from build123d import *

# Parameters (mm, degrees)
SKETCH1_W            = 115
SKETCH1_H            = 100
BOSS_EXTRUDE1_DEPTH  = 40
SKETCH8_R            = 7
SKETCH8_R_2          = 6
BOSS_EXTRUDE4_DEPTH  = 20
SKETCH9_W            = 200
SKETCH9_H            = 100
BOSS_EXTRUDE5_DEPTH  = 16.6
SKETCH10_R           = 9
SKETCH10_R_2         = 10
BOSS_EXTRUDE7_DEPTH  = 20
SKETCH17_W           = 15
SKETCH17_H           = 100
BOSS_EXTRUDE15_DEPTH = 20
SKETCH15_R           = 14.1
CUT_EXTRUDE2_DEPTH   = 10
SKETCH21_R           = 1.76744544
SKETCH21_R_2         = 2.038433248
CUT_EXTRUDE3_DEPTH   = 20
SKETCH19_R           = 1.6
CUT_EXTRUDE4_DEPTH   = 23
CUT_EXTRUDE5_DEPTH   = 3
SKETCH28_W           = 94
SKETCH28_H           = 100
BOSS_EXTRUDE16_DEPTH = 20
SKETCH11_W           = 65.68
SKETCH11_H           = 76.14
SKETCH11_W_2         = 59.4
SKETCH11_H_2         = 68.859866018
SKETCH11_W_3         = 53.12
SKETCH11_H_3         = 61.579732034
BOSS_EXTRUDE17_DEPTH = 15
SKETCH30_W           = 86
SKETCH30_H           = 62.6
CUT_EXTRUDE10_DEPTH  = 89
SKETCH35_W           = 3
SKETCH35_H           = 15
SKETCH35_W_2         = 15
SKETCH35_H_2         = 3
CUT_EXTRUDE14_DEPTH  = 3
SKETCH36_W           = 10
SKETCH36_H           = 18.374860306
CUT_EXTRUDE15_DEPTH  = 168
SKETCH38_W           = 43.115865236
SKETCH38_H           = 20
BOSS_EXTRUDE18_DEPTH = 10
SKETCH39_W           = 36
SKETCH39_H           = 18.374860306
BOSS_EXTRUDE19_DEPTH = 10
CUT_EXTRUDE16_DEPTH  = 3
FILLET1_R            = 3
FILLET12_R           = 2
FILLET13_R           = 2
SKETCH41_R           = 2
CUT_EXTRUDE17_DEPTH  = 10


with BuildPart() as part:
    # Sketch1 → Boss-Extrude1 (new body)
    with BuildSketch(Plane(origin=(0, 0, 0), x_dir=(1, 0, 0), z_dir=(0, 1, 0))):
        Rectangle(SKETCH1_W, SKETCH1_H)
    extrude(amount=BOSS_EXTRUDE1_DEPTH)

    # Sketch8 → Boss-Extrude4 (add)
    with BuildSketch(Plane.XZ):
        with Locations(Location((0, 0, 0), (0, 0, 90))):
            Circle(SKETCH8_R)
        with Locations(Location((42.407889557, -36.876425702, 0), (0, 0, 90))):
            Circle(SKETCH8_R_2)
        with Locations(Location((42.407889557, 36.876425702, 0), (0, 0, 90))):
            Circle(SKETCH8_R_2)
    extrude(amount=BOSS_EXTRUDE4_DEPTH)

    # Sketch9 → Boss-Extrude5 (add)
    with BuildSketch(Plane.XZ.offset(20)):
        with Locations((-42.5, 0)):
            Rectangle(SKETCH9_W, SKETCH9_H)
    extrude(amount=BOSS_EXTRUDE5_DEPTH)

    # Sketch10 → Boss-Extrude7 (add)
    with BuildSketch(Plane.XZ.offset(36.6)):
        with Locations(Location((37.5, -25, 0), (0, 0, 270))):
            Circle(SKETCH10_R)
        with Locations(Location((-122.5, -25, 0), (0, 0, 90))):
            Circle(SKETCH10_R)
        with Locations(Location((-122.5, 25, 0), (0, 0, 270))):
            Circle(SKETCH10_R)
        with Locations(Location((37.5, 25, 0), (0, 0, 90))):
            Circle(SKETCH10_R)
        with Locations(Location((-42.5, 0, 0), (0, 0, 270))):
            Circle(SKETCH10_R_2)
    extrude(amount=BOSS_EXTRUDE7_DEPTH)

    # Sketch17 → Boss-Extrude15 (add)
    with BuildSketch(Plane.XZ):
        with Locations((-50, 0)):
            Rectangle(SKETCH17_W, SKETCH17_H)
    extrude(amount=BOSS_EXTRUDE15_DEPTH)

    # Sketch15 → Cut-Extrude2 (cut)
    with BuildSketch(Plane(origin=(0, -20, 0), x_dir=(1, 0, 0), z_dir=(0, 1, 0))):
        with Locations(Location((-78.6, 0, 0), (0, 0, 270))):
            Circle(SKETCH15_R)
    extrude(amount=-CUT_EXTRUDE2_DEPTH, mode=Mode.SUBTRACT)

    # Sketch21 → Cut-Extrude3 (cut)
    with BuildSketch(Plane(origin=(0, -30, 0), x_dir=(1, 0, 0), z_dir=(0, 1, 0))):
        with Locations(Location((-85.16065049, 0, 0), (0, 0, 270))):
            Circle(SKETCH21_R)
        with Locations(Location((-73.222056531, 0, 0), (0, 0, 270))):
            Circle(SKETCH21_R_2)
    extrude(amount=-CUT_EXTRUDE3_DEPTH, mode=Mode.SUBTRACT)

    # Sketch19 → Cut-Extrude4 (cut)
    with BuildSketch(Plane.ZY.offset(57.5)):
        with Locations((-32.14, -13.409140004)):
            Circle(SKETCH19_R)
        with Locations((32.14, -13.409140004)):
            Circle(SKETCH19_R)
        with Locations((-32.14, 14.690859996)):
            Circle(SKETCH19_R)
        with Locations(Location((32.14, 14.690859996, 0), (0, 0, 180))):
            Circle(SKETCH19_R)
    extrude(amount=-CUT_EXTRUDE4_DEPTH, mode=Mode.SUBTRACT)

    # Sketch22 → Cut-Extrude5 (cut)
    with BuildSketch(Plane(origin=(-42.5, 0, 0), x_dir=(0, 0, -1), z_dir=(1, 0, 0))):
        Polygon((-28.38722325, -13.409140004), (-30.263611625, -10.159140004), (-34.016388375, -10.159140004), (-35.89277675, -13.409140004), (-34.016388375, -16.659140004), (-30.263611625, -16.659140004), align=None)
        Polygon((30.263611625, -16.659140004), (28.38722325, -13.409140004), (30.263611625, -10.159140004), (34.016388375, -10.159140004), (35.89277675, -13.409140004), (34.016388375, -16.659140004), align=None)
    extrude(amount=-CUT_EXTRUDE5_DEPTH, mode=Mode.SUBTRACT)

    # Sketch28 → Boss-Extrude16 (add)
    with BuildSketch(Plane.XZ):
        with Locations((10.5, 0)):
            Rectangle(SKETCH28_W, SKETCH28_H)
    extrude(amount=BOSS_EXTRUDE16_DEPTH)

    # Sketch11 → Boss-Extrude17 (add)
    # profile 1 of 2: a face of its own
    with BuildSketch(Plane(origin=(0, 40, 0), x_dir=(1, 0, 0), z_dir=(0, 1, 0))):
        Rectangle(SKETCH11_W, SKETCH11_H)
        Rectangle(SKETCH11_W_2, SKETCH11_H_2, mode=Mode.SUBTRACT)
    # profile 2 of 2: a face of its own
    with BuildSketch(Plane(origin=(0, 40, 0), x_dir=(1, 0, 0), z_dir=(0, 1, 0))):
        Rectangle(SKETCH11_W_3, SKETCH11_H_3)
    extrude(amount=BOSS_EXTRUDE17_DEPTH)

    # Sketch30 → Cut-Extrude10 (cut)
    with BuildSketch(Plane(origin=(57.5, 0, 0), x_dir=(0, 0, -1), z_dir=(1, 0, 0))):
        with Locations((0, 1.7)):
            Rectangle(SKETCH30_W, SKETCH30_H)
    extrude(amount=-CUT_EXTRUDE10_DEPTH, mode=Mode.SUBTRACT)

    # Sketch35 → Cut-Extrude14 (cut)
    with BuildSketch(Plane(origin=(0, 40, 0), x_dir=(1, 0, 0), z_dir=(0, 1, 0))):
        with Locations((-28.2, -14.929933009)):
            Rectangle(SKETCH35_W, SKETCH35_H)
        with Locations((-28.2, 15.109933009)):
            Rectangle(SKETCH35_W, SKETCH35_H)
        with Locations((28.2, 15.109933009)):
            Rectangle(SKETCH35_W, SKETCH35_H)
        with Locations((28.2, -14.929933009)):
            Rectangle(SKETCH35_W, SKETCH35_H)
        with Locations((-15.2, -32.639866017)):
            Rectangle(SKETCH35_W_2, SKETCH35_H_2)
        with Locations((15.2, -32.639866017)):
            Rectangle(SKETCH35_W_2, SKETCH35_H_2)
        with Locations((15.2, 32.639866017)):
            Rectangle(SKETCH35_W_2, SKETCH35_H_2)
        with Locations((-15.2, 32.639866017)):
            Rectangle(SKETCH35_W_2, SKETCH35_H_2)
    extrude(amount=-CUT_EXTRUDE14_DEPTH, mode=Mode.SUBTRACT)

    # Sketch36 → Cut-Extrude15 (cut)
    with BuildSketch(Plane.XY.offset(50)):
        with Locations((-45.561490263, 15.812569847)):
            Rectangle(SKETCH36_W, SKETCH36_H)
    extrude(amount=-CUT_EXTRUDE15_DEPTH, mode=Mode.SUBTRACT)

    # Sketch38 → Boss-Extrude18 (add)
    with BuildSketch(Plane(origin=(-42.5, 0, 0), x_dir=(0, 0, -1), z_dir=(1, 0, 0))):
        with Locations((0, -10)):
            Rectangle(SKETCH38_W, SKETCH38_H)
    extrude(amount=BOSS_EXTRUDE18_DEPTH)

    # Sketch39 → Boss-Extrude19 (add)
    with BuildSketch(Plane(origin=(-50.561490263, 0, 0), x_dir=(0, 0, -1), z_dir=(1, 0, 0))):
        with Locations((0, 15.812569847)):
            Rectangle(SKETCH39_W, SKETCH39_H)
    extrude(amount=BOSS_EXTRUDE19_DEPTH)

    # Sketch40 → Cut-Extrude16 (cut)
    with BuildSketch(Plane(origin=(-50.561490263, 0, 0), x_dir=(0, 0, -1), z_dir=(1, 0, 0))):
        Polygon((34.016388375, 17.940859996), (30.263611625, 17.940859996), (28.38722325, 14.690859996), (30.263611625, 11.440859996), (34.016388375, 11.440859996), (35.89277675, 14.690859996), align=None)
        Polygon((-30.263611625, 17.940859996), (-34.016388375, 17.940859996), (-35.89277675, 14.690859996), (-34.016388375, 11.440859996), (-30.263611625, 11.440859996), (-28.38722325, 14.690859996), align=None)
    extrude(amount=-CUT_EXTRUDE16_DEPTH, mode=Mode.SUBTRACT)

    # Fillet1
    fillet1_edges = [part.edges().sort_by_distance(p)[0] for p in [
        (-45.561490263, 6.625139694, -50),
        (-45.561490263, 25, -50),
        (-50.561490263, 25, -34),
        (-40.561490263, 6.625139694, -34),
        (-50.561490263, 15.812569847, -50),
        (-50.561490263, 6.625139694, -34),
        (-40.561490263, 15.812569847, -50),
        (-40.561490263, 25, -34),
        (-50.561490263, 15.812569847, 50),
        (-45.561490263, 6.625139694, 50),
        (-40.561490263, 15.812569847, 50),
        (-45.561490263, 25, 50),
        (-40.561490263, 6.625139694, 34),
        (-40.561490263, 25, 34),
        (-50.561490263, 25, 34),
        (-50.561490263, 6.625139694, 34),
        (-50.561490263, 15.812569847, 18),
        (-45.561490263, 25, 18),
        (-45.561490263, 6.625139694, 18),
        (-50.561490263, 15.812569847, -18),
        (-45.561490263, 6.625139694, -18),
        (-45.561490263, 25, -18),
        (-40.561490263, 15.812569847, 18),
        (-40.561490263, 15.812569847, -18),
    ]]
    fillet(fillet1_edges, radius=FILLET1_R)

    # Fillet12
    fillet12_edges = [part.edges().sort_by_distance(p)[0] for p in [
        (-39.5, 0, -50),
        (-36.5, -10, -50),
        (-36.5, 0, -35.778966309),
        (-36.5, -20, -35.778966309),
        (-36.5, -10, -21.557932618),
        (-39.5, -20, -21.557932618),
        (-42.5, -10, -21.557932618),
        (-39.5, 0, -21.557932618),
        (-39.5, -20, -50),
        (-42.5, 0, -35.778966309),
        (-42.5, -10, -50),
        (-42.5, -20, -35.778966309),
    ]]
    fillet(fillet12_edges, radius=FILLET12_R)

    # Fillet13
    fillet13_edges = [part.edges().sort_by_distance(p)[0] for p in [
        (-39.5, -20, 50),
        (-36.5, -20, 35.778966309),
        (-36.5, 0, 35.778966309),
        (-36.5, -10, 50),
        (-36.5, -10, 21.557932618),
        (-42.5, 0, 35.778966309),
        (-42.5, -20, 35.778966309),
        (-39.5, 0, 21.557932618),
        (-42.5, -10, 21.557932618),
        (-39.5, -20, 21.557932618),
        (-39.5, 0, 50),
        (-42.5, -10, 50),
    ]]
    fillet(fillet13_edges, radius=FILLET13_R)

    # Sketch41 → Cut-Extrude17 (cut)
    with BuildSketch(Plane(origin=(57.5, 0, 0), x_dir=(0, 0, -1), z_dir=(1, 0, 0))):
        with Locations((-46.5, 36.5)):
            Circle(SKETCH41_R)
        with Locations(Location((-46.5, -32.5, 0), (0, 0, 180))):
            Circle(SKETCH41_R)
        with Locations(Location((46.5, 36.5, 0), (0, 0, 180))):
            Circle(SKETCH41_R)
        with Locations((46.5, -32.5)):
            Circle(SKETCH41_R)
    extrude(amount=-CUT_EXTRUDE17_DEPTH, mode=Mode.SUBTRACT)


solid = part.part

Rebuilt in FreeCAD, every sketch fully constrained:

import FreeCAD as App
import Part
import Sketcher

V = App.Vector
Q = App.Units.Quantity


def edges_at(feature, points):
    """Names of the edges that pass closest to the given points."""
    edges = feature.Shape.Edges
    near = lambda p: min(range(len(edges)), key=lambda i: edges[i].distToShape(Part.Vertex(*p))[0])
    return sorted({f"Edge{near(p) + 1}" for p in points})


def add_polygon(sketch, points):
    """Adds a closed chain of lines whose ends are joined by coincident constraints."""
    first, n = sketch.GeometryCount, len(points)
    for a, b in zip(points, points[1:] + points[:1]):
        sketch.addGeometry(Part.LineSegment(App.Vector(*a, 0), App.Vector(*b, 0)), False)
    for i in range(n):
        sketch.addConstraint(Sketcher.Constraint("Coincident", first + i, 2, first + (i + 1) % n, 1))

doc = App.newDocument("Part")
params = doc.addObject("Spreadsheet::Sheet", "Params")
for row, (alias, value) in enumerate([
    ("sketch1_width", "115 mm"),
    ("sketch1_height", "100 mm"),
    ("pad1_length", "40 mm"),
    ("sketch2_diameter", "14 mm"),
    ("sketch2_diameter2", "12 mm"),
    ("pad2_length", "20 mm"),
    ("sketch3_width", "200 mm"),
    ("sketch3_height", "100 mm"),
    ("pad3_length", "16.6 mm"),
    ("sketch4_diameter", "18 mm"),
    ("sketch4_diameter2", "20 mm"),
    ("pad4_length", "20 mm"),
    ("sketch5_width", "15 mm"),
    ("sketch5_height", "100 mm"),
    ("pad5_length", "20 mm"),
    ("sketch6_diameter", "28.2 mm"),
    ("pocket1_length", "10 mm"),
    ("pocket2_length", "20 mm"),
    ("sketch8_diameter", "3.2 mm"),
    ("pocket3_length", "23 mm"),
    ("pocket4_length", "3 mm"),
    ("sketch10_width", "94 mm"),
    ("sketch10_height", "100 mm"),
    ("pad6_length", "20 mm"),
    ("sketch11_width", "59.4 mm"),
    ("sketch11_width2", "65.68 mm"),
    ("sketch11_width3", "53.12 mm"),
    ("sketch11_height", "76.14 mm"),
    ("pad7_length", "15 mm"),
    ("sketch12_height", "86 mm"),
    ("sketch12_width", "62.6 mm"),
    ("pocket5_length", "89 mm"),
    ("sketch13_width", "3 mm"),
    ("sketch13_width2", "15 mm"),
    ("pocket6_length", "3 mm"),
    ("sketch14_width", "10 mm"),
    ("pocket7_length", "168 mm"),
    ("sketch15_width", "20 mm"),
    ("pad8_length", "10 mm"),
    ("sketch16_height", "36 mm"),
    ("pad9_length", "10 mm"),
    ("pocket8_length", "3 mm"),
    ("fillet_radius", "3 mm"),
    ("fillet2_radius", "2 mm"),
    ("fillet3_radius", "2 mm"),
    ("sketch18_diameter", "4 mm"),
    ("pocket9_length", "10 mm"),
], start=1):
    params.set(f"A{row}", alias)
    params.set(f"B{row}", "=" + value)
    params.setAlias(f"B{row}", alias)

body = doc.addObject("PartDesign::Body", "Body")

sketch1 = doc.addObject("Sketcher::SketchObject", "Sketch")
body.addObject(sketch1)
sketch1.AttachmentSupport = (doc.XZ_Plane, [""])
sketch1.MapMode = "FlatFace"
add_polygon(sketch1, [(-58, -50), (-58, 50), (58, 50), (58, -50)])
sketch1.addConstraint(Sketcher.Constraint("Vertical", 0))
sketch1.addConstraint(Sketcher.Constraint("Horizontal", 1))
sketch1.addConstraint(Sketcher.Constraint("Vertical", 2))
sketch1.addConstraint(Sketcher.Constraint("Horizontal", 3))
sketch1.addConstraint(Sketcher.Constraint("Symmetric", 0, 2, 2, 2, -1, 1))
sketch1.addConstraint(Sketcher.Constraint("DistanceX", 1, 1, 1, 2, 115.0))
sketch1.addConstraint(Sketcher.Constraint("DistanceY", 0, 1, 0, 2, 100.0))
sketch1.setExpression("Constraints[9]", "Params.sketch1_width")
sketch1.setExpression("Constraints[10]", "Params.sketch1_height")
pad1 = doc.addObject("PartDesign::Pad", "Pad")
body.addObject(pad1)
pad1.Profile = sketch1
pad1.setExpression("Length", "Params.pad1_length")
pad1.Reversed = True

sketch2 = doc.addObject("Sketcher::SketchObject", "Sketch001")
body.addObject(sketch2)
sketch2.AttachmentSupport = (doc.XZ_Plane, [""])
sketch2.MapMode = "FlatFace"
sketch2.addGeometry(Part.Circle(V(0, 0, 0), V(0, 0, 1), 7), False)
sketch2.addGeometry(Part.Circle(V(42, -37, 0), V(0, 0, 1), 6), False)
sketch2.addGeometry(Part.Circle(V(42, 37, 0), V(0, 0, 1), 6), False)
sketch2.addConstraint(Sketcher.Constraint("Coincident", 0, 3, -1, 1))
sketch2.addConstraint(Sketcher.Constraint("Equal", 1, 2))
sketch2.addConstraint(Sketcher.Constraint("Symmetric", 1, 3, 2, 3, -1))
sketch2.addConstraint(Sketcher.Constraint("Diameter", 0, 14.0))
sketch2.addConstraint(Sketcher.Constraint("Diameter", 1, 12.0))
sketch2.addConstraint(Sketcher.Constraint("DistanceX", -1, 1, 1, 3, 42.40789))
sketch2.addConstraint(Sketcher.Constraint("DistanceY", 1, 3, 2, 3, 73.752851))
sketch2.setExpression("Constraints[3]", "Params.sketch2_diameter")
sketch2.setExpression("Constraints[4]", "Params.sketch2_diameter2")
pad2 = doc.addObject("PartDesign::Pad", "Pad001")
body.addObject(pad2)
pad2.Profile = sketch2
pad2.setExpression("Length", "Params.pad2_length")

sketch3 = doc.addObject("Sketcher::SketchObject", "Sketch002")
body.addObject(sketch3)
sketch3.AttachmentSupport = (doc.XZ_Plane, [""])
sketch3.MapMode = "FlatFace"
sketch3.AttachmentOffset = App.Placement(V(0, 0, 20), App.Rotation())
add_polygon(sketch3, [(-142, 50), (-142, -50), (58, -50), (58, 50)])
sketch3.addConstraint(Sketcher.Constraint("Vertical", 0))
sketch3.addConstraint(Sketcher.Constraint("Horizontal", 1))
sketch3.addConstraint(Sketcher.Constraint("Vertical", 2))
sketch3.addConstraint(Sketcher.Constraint("Horizontal", 3))
sketch3.addConstraint(Sketcher.Constraint("DistanceX", 1, 1, 1, 2, 200.0))
sketch3.addConstraint(Sketcher.Constraint("DistanceY", 0, 2, 0, 1, 100.0))
sketch3.addConstraint(Sketcher.Constraint("DistanceY", 0, 2, -1, 1, 50.0))
sketch3.addConstraint(Sketcher.Constraint("DistanceX", 0, 2, -1, 1, 142.5))
sketch3.setExpression("Constraints[8]", "Params.sketch3_width")
sketch3.setExpression("Constraints[9]", "Params.sketch3_height")
pad3 = doc.addObject("PartDesign::Pad", "Pad002")
body.addObject(pad3)
pad3.Profile = sketch3
pad3.setExpression("Length", "Params.pad3_length")

sketch4 = doc.addObject("Sketcher::SketchObject", "Sketch003")
body.addObject(sketch4)
sketch4.AttachmentSupport = (doc.XZ_Plane, [""])
sketch4.MapMode = "FlatFace"
sketch4.AttachmentOffset = App.Placement(V(0, 0, 36.6), App.Rotation())
sketch4.addGeometry(Part.Circle(V(38, -25, 0), V(0, 0, 1), 9), False)
sketch4.addGeometry(Part.Circle(V(-122, -25, 0), V(0, 0, 1), 9), False)
sketch4.addGeometry(Part.Circle(V(-122, 25, 0), V(0, 0, 1), 9), False)
sketch4.addGeometry(Part.Circle(V(38, 25, 0), V(0, 0, 1), 9), False)
sketch4.addGeometry(Part.Circle(V(-42, 0, 0), V(0, 0, 1), 10), False)
sketch4.addConstraint(Sketcher.Constraint("Equal", 0, 1))
sketch4.addConstraint(Sketcher.Constraint("Equal", 1, 2))
sketch4.addConstraint(Sketcher.Constraint("Equal", 2, 3))
sketch4.addConstraint(Sketcher.Constraint("Symmetric", 1, 3, 2, 3, -1))
sketch4.addConstraint(Sketcher.Constraint("Symmetric", 0, 3, 3, 3, -1))
sketch4.addConstraint(Sketcher.Constraint("PointOnObject", 4, 3, -1))
sketch4.addConstraint(Sketcher.Constraint("Horizontal", 0, 3, 1, 3))
sketch4.addConstraint(Sketcher.Constraint("Diameter", 0, 18.0))
sketch4.addConstraint(Sketcher.Constraint("Diameter", 4, 20.0))
sketch4.addConstraint(Sketcher.Constraint("DistanceY", 0, 3, -1, 1, 25.0))
sketch4.addConstraint(Sketcher.Constraint("DistanceX", 1, 3, 0, 3, 160.0))
sketch4.addConstraint(Sketcher.Constraint("DistanceX", 4, 3, 0, 3, 80.0))
sketch4.addConstraint(Sketcher.Constraint("DistanceX", -1, 1, 0, 3, 37.5))
sketch4.setExpression("Constraints[7]", "Params.sketch4_diameter")
sketch4.setExpression("Constraints[8]", "Params.sketch4_diameter2")
pad4 = doc.addObject("PartDesign::Pad", "Pad003")
body.addObject(pad4)
pad4.Profile = sketch4
pad4.setExpression("Length", "Params.pad4_length")

sketch5 = doc.addObject("Sketcher::SketchObject", "Sketch004")
body.addObject(sketch5)
sketch5.AttachmentSupport = (doc.XZ_Plane, [""])
sketch5.MapMode = "FlatFace"
add_polygon(sketch5, [(-58, 50), (-58, -50), (-42, -50), (-42, 50)])
sketch5.addConstraint(Sketcher.Constraint("Vertical", 0))
sketch5.addConstraint(Sketcher.Constraint("Horizontal", 1))
sketch5.addConstraint(Sketcher.Constraint("Vertical", 2))
sketch5.addConstraint(Sketcher.Constraint("Horizontal", 3))
sketch5.addConstraint(Sketcher.Constraint("DistanceX", 1, 1, 1, 2, 15.0))
sketch5.addConstraint(Sketcher.Constraint("DistanceY", 0, 2, 0, 1, 100.0))
sketch5.addConstraint(Sketcher.Constraint("DistanceY", 0, 2, -1, 1, 50.0))
sketch5.addConstraint(Sketcher.Constraint("DistanceX", 0, 2, -1, 1, 57.5))
sketch5.setExpression("Constraints[8]", "Params.sketch5_width")
sketch5.setExpression("Constraints[9]", "Params.sketch5_height")
pad5 = doc.addObject("PartDesign::Pad", "Pad004")
body.addObject(pad5)
pad5.Profile = sketch5
pad5.setExpression("Length", "Params.pad5_length")

sketch6 = doc.addObject("Sketcher::SketchObject", "Sketch005")
body.addObject(sketch6)
sketch6.AttachmentSupport = (doc.XZ_Plane, [""])
sketch6.MapMode = "FlatFace"
sketch6.AttachmentOffset = App.Placement(V(0, 0, 20), App.Rotation())
sketch6.addGeometry(Part.Circle(V(-79, 0, 0), V(0, 0, 1), 14), False)
sketch6.addConstraint(Sketcher.Constraint("PointOnObject", 0, 3, -1))
sketch6.addConstraint(Sketcher.Constraint("Diameter", 0, 28.2))
sketch6.addConstraint(Sketcher.Constraint("DistanceX", 0, 3, -1, 1, 78.6))
sketch6.setExpression("Constraints[1]", "Params.sketch6_diameter")
pocket1 = doc.addObject("PartDesign::Pocket", "Pocket")
body.addObject(pocket1)
pocket1.Profile = sketch6
pocket1.setExpression("Length", "Params.pocket1_length")
pocket1.Reversed = True

sketch7 = doc.addObject("Sketcher::SketchObject", "Sketch006")
body.addObject(sketch7)
sketch7.AttachmentSupport = (doc.XZ_Plane, [""])
sketch7.MapMode = "FlatFace"
sketch7.AttachmentOffset = App.Placement(V(0, 0, 30), App.Rotation())
sketch7.addGeometry(Part.Circle(V(-85.2, 0, 0), V(0, 0, 1), 1.8), False)
sketch7.addGeometry(Part.Circle(V(-73.2, 0, 0), V(0, 0, 1), 2), False)
sketch7.addConstraint(Sketcher.Constraint("PointOnObject", 0, 3, -1))
sketch7.addConstraint(Sketcher.Constraint("PointOnObject", 1, 3, -1))
sketch7.addConstraint(Sketcher.Constraint("Diameter", 0, 3.534891))
sketch7.addConstraint(Sketcher.Constraint("Diameter", 1, 4.076866))
sketch7.addConstraint(Sketcher.Constraint("DistanceX", 0, 3, -1, 1, 85.16065))
sketch7.addConstraint(Sketcher.Constraint("DistanceX", 1, 3, -1, 1, 73.222057))
pocket2 = doc.addObject("PartDesign::Pocket", "Pocket001")
body.addObject(pocket2)
pocket2.Profile = sketch7
pocket2.setExpression("Length", "Params.pocket2_length")
pocket2.Reversed = True

sketch8 = doc.addObject("Sketcher::SketchObject", "Sketch007")
body.addObject(sketch8)
sketch8.AttachmentSupport = (doc.YZ_Plane, [""])
sketch8.MapMode = "FlatFace"
sketch8.AttachmentOffset = App.Placement(V(0, 0, -57.5), App.Rotation())
sketch8.addGeometry(Part.Circle(V(-13.4, -32.1, 0), V(0, 0, 1), 1.6), False)
sketch8.addGeometry(Part.Circle(V(-13.4, 32.1, 0), V(0, 0, 1), 1.6), False)
sketch8.addGeometry(Part.Circle(V(14.7, -32.1, 0), V(0, 0, 1), 1.6), False)
sketch8.addGeometry(Part.Circle(V(14.7, 32.1, 0), V(0, 0, 1), 1.6), False)
sketch8.addConstraint(Sketcher.Constraint("Equal", 0, 1))
sketch8.addConstraint(Sketcher.Constraint("Equal", 1, 2))
sketch8.addConstraint(Sketcher.Constraint("Equal", 2, 3))
sketch8.addConstraint(Sketcher.Constraint("Symmetric", 0, 3, 1, 3, -1))
sketch8.addConstraint(Sketcher.Constraint("Symmetric", 2, 3, 3, 3, -1))
sketch8.addConstraint(Sketcher.Constraint("Horizontal", 0, 3, 2, 3))
sketch8.addConstraint(Sketcher.Constraint("Diameter", 0, 3.2))
sketch8.addConstraint(Sketcher.Constraint("DistanceX", 0, 3, 2, 3, 28.1))
sketch8.addConstraint(Sketcher.Constraint("DistanceY", 0, 3, -1, 1, 32.14))
sketch8.addConstraint(Sketcher.Constraint("DistanceX", 0, 3, -1, 1, 13.40914))
sketch8.setExpression("Constraints[6]", "Params.sketch8_diameter")
pocket3 = doc.addObject("PartDesign::Pocket", "Pocket002")
body.addObject(pocket3)
pocket3.Profile = sketch8
pocket3.setExpression("Length", "Params.pocket3_length")
pocket3.Reversed = True

sketch9 = doc.addObject("Sketcher::SketchObject", "Sketch008")
body.addObject(sketch9)
sketch9.AttachmentSupport = (doc.YZ_Plane, [""])
sketch9.MapMode = "FlatFace"
sketch9.AttachmentOffset = App.Placement(V(0, 0, -42.5), App.Rotation())
add_polygon(sketch9, [(-13.4, 28.4), (-10.2, 30.3), (-10.2, 34), (-13.4, 35.9), (-16.7, 34), (-16.7, 30.3)])
add_polygon(sketch9, [(-13.4, -28.4), (-16.7, -30.3), (-16.7, -34), (-13.4, -35.9), (-10.2, -34), (-10.2, -30.3)])
sketch9.addConstraint(Sketcher.Constraint("Vertical", 1))
sketch9.addConstraint(Sketcher.Constraint("Vertical", 4))
sketch9.addConstraint(Sketcher.Constraint("Vertical", 7))
sketch9.addConstraint(Sketcher.Constraint("Vertical", 10))
sketch9.addConstraint(Sketcher.Constraint("Symmetric", 4, 2, 6, 2, -1))
sketch9.addConstraint(Sketcher.Constraint("Symmetric", 2, 2, 8, 2, -1))
sketch9.addConstraint(Sketcher.Constraint("Symmetric", 1, 2, 9, 2, -1))
sketch9.addConstraint(Sketcher.Constraint("Symmetric", 5, 2, 11, 2, -1))
sketch9.addConstraint(Sketcher.Constraint("Parallel", 0, 3))
sketch9.addConstraint(Sketcher.Constraint("Parallel", 2, 5))
sketch9.addConstraint(Sketcher.Constraint("Parallel", 3, 6))
sketch9.addConstraint(Sketcher.Constraint("Parallel", 5, 8))
sketch9.addConstraint(Sketcher.Constraint("Parallel", 8, 11))
sketch9.addConstraint(Sketcher.Constraint("Horizontal", 1, 2, 3, 2))
sketch9.addConstraint(Sketcher.Constraint("Horizontal", 0, 2, 4, 2))
sketch9.addConstraint(Sketcher.Constraint("Angle", 0, Q("30 deg")))
sketch9.addConstraint(Sketcher.Constraint("DistanceX", 3, 2, 1, 2, 6.5))
sketch9.addConstraint(Sketcher.Constraint("DistanceY", 6, 2, 3, 2, 64.28))
sketch9.addConstraint(Sketcher.Constraint("DistanceY", 1, 1, 1, 2, 3.752777))
sketch9.addConstraint(Sketcher.Constraint("DistanceX", 0, 2, -1, 1, 10.15914))
pocket4 = doc.addObject("PartDesign::Pocket", "Pocket003")
body.addObject(pocket4)
pocket4.Profile = sketch9
pocket4.setExpression("Length", "Params.pocket4_length")

sketch10 = doc.addObject("Sketcher::SketchObject", "Sketch009")
body.addObject(sketch10)
sketch10.AttachmentSupport = (doc.XZ_Plane, [""])
sketch10.MapMode = "FlatFace"
add_polygon(sketch10, [(-36, 50), (-36, -50), (58, -50), (58, 50)])
sketch10.addConstraint(Sketcher.Constraint("Vertical", 0))
sketch10.addConstraint(Sketcher.Constraint("Horizontal", 1))
sketch10.addConstraint(Sketcher.Constraint("Vertical", 2))
sketch10.addConstraint(Sketcher.Constraint("Horizontal", 3))
sketch10.addConstraint(Sketcher.Constraint("DistanceX", 1, 1, 1, 2, 94.0))
sketch10.addConstraint(Sketcher.Constraint("DistanceY", 0, 2, 0, 1, 100.0))
sketch10.addConstraint(Sketcher.Constraint("DistanceY", 0, 2, -1, 1, 50.0))
sketch10.addConstraint(Sketcher.Constraint("DistanceX", 0, 2, -1, 1, 36.5))
sketch10.setExpression("Constraints[8]", "Params.sketch10_width")
sketch10.setExpression("Constraints[9]", "Params.sketch10_height")
pad6 = doc.addObject("PartDesign::Pad", "Pad005")
body.addObject(pad6)
pad6.Profile = sketch10
pad6.setExpression("Length", "Params.pad6_length")

sketch11 = doc.addObject("Sketcher::SketchObject", "Sketch010")
body.addObject(sketch11)
sketch11.AttachmentSupport = (doc.XZ_Plane, [""])
sketch11.MapMode = "FlatFace"
sketch11.AttachmentOffset = App.Placement(V(0, 0, -40), App.Rotation())
add_polygon(sketch11, [(-33, -38), (-33, 38), (33, 38), (33, -38)])
add_polygon(sketch11, [(30, 34), (-30, 34), (-30, -34), (30, -34)])
add_polygon(sketch11, [(-27, -31), (-27, 31), (27, 31), (27, -31)])
sketch11.addConstraint(Sketcher.Constraint("Vertical", 0))
sketch11.addConstraint(Sketcher.Constraint("Horizontal", 1))
sketch11.addConstraint(Sketcher.Constraint("Vertical", 2))
sketch11.addConstraint(Sketcher.Constraint("Horizontal", 3))
sketch11.addConstraint(Sketcher.Constraint("Horizontal", 4))
sketch11.addConstraint(Sketcher.Constraint("Vertical", 5))
sketch11.addConstraint(Sketcher.Constraint("Horizontal", 6))
sketch11.addConstraint(Sketcher.Constraint("Vertical", 7))
sketch11.addConstraint(Sketcher.Constraint("Vertical", 8))
sketch11.addConstraint(Sketcher.Constraint("Horizontal", 9))
sketch11.addConstraint(Sketcher.Constraint("Vertical", 10))
sketch11.addConstraint(Sketcher.Constraint("Horizontal", 11))
sketch11.addConstraint(Sketcher.Constraint("Symmetric", 0, 2, 2, 2, -1, 1))
sketch11.addConstraint(Sketcher.Constraint("Symmetric", 4, 2, 6, 2, -1, 1))
sketch11.addConstraint(Sketcher.Constraint("Symmetric", 8, 2, 10, 2, -1, 1))
sketch11.addConstraint(Sketcher.Constraint("DistanceX", 4, 2, 4, 1, 59.4))
sketch11.addConstraint(Sketcher.Constraint("DistanceX", 1, 1, 1, 2, 65.68))
sketch11.addConstraint(Sketcher.Constraint("DistanceX", 9, 1, 9, 2, 53.12))
sketch11.addConstraint(Sketcher.Constraint("DistanceY", 0, 1, 0, 2, 76.14))
sketch11.addConstraint(Sketcher.Constraint("DistanceY", 5, 2, 8, 2, 65.219799))
sketch11.addConstraint(Sketcher.Constraint("DistanceY", 5, 2, 5, 1, 68.859866))
sketch11.setExpression("Constraints[27]", "Params.sketch11_width")
sketch11.setExpression("Constraints[28]", "Params.sketch11_width2")
sketch11.setExpression("Constraints[29]", "Params.sketch11_width3")
sketch11.setExpression("Constraints[30]", "Params.sketch11_height")
pad7 = doc.addObject("PartDesign::Pad", "Pad006")
body.addObject(pad7)
pad7.Profile = sketch11
pad7.setExpression("Length", "Params.pad7_length")
pad7.Reversed = True

sketch12 = doc.addObject("Sketcher::SketchObject", "Sketch011")
body.addObject(sketch12)
sketch12.AttachmentSupport = (doc.YZ_Plane, [""])
sketch12.MapMode = "FlatFace"
sketch12.AttachmentOffset = App.Placement(V(0, 0, 57.5), App.Rotation())
add_polygon(sketch12, [(33, 43), (-30, 43), (-30, -43), (33, -43)])
sketch12.addConstraint(Sketcher.Constraint("Horizontal", 0))
sketch12.addConstraint(Sketcher.Constraint("Vertical", 1))
sketch12.addConstraint(Sketcher.Constraint("Horizontal", 2))
sketch12.addConstraint(Sketcher.Constraint("Vertical", 3))
sketch12.addConstraint(Sketcher.Constraint("DistanceY", 1, 2, 1, 1, 86.0))
sketch12.addConstraint(Sketcher.Constraint("DistanceX", 0, 2, 0, 1, 62.6))
sketch12.addConstraint(Sketcher.Constraint("DistanceY", -1, 1, 0, 2, 43.0))
sketch12.addConstraint(Sketcher.Constraint("DistanceX", -1, 1, 2, 2, 33.0))
sketch12.setExpression("Constraints[8]", "Params.sketch12_height")
sketch12.setExpression("Constraints[9]", "Params.sketch12_width")
pocket5 = doc.addObject("PartDesign::Pocket", "Pocket004")
body.addObject(pocket5)
pocket5.Profile = sketch12
pocket5.setExpression("Length", "Params.pocket5_length")

sketch13 = doc.addObject("Sketcher::SketchObject", "Sketch012")
body.addObject(sketch13)
sketch13.AttachmentSupport = (doc.XZ_Plane, [""])
sketch13.MapMode = "FlatFace"
sketch13.AttachmentOffset = App.Placement(V(0, 0, -40), App.Rotation())
add_polygon(sketch13, [(-29.7, 7.4), (-29.7, 22.4), (-26.7, 22.4), (-26.7, 7.4)])
add_polygon(sketch13, [(-29.7, -22.6), (-29.7, -7.6), (-26.7, -7.6), (-26.7, -22.6)])
add_polygon(sketch13, [(26.7, -22.6), (26.7, -7.6), (29.7, -7.6), (29.7, -22.6)])
add_polygon(sketch13, [(26.7, 7.4), (26.7, 22.4), (29.7, 22.4), (29.7, 7.4)])
add_polygon(sketch13, [(-22.7, 31.1), (-22.7, 34.1), (-7.7, 34.1), (-7.7, 31.1)])
add_polygon(sketch13, [(7.7, 31.1), (7.7, 34.1), (22.7, 34.1), (22.7, 31.1)])
add_polygon(sketch13, [(7.7, -34.1), (7.7, -31.1), (22.7, -31.1), (22.7, -34.1)])
add_polygon(sketch13, [(-22.7, -34.1), (-22.7, -31.1), (-7.7, -31.1), (-7.7, -34.1)])
sketch13.addConstraint(Sketcher.Constraint("Vertical", 0))
sketch13.addConstraint(Sketcher.Constraint("Horizontal", 1))
sketch13.addConstraint(Sketcher.Constraint("Vertical", 2))
sketch13.addConstraint(Sketcher.Constraint("Horizontal", 3))
sketch13.addConstraint(Sketcher.Constraint("Vertical", 4))
sketch13.addConstraint(Sketcher.Constraint("Horizontal", 5))
sketch13.addConstraint(Sketcher.Constraint("Vertical", 6))
sketch13.addConstraint(Sketcher.Constraint("Horizontal", 7))
sketch13.addConstraint(Sketcher.Constraint("Vertical", 8))
sketch13.addConstraint(Sketcher.Constraint("Horizontal", 9))
sketch13.addConstraint(Sketcher.Constraint("Vertical", 10))
sketch13.addConstraint(Sketcher.Constraint("Horizontal", 11))
sketch13.addConstraint(Sketcher.Constraint("Vertical", 12))
sketch13.addConstraint(Sketcher.Constraint("Horizontal", 13))
sketch13.addConstraint(Sketcher.Constraint("Vertical", 14))
sketch13.addConstraint(Sketcher.Constraint("Horizontal", 15))
sketch13.addConstraint(Sketcher.Constraint("Vertical", 16))
sketch13.addConstraint(Sketcher.Constraint("Horizontal", 17))
sketch13.addConstraint(Sketcher.Constraint("Vertical", 18))
sketch13.addConstraint(Sketcher.Constraint("Horizontal", 19))
sketch13.addConstraint(Sketcher.Constraint("Vertical", 20))
sketch13.addConstraint(Sketcher.Constraint("Horizontal", 21))
sketch13.addConstraint(Sketcher.Constraint("Vertical", 22))
sketch13.addConstraint(Sketcher.Constraint("Horizontal", 23))
sketch13.addConstraint(Sketcher.Constraint("Vertical", 24))
sketch13.addConstraint(Sketcher.Constraint("Horizontal", 25))
sketch13.addConstraint(Sketcher.Constraint("Vertical", 26))
sketch13.addConstraint(Sketcher.Constraint("Horizontal", 27))
sketch13.addConstraint(Sketcher.Constraint("Vertical", 28))
sketch13.addConstraint(Sketcher.Constraint("Horizontal", 29))
sketch13.addConstraint(Sketcher.Constraint("Vertical", 30))
sketch13.addConstraint(Sketcher.Constraint("Horizontal", 31))
sketch13.addConstraint(Sketcher.Constraint("Symmetric", 18, 2, 24, 2, -1, 1))
sketch13.addConstraint(Sketcher.Constraint("Symmetric", 16, 2, 26, 2, -1, 1))
sketch13.addConstraint(Sketcher.Constraint("Symmetric", 22, 2, 28, 2, -1, 1))
sketch13.addConstraint(Sketcher.Constraint("Symmetric", 20, 2, 30, 2, -1, 1))
sketch13.addConstraint(Sketcher.Constraint("Symmetric", 5, 2, 8, 2, -2))
sketch13.addConstraint(Sketcher.Constraint("Symmetric", 7, 2, 10, 2, -2))
sketch13.addConstraint(Sketcher.Constraint("Symmetric", 1, 2, 12, 2, -2))
sketch13.addConstraint(Sketcher.Constraint("Symmetric", 3, 2, 14, 2, -2))
sketch13.addConstraint(Sketcher.Constraint("Symmetric", 17, 2, 20, 2, -2))
sketch13.addConstraint(Sketcher.Constraint("Symmetric", 19, 2, 22, 2, -2))
sketch13.addConstraint(Sketcher.Constraint("Vertical", 3, 2, 4, 2))
sketch13.addConstraint(Sketcher.Constraint("Vertical", 2, 2, 5, 2))
sketch13.addConstraint(Sketcher.Constraint("Equal", 31, 0))
sketch13.addConstraint(Sketcher.Constraint("Equal", 2, 4))
sketch13.addConstraint(Sketcher.Constraint("Equal", 15, 16))
sketch13.addConstraint(Sketcher.Constraint("DistanceX", 1, 1, 1, 2, 3.0))
sketch13.addConstraint(Sketcher.Constraint("DistanceX", 17, 1, 17, 2, 15.0))
sketch13.addConstraint(Sketcher.Constraint("DistanceX", 1, 2, 16, 2, 4.0))
sketch13.addConstraint(Sketcher.Constraint("DistanceX", 0, 2, -1, 1, 29.7))
sketch13.addConstraint(Sketcher.Constraint("DistanceY", 5, 2, 16, 2, 41.749799))
sketch13.addConstraint(Sketcher.Constraint("DistanceY", -1, 1, 0, 2, 22.429933))
sketch13.addConstraint(Sketcher.Constraint("DistanceY", 4, 2, -1, 1, 7.609933))
sketch13.setExpression("Constraints[79]", "Params.sketch13_width")
sketch13.setExpression("Constraints[80]", "Params.sketch13_width2")
pocket6 = doc.addObject("PartDesign::Pocket", "Pocket005")
body.addObject(pocket6)
pocket6.Profile = sketch13
pocket6.setExpression("Length", "Params.pocket6_length")
pocket6.Reversed = True

sketch14 = doc.addObject("Sketcher::SketchObject", "Sketch013")
body.addObject(sketch14)
sketch14.AttachmentSupport = (doc.XY_Plane, [""])
sketch14.MapMode = "FlatFace"
sketch14.AttachmentOffset = App.Placement(V(0, 0, 50), App.Rotation())
add_polygon(sketch14, [(-51, 25), (-51, 7), (-41, 7), (-41, 25)])
sketch14.addConstraint(Sketcher.Constraint("Vertical", 0))
sketch14.addConstraint(Sketcher.Constraint("Horizontal", 1))
sketch14.addConstraint(Sketcher.Constraint("Vertical", 2))
sketch14.addConstraint(Sketcher.Constraint("Horizontal", 3))
sketch14.addConstraint(Sketcher.Constraint("DistanceX", 1, 1, 1, 2, 10.0))
sketch14.addConstraint(Sketcher.Constraint("DistanceY", -1, 1, 2, 2, 25.0))
sketch14.addConstraint(Sketcher.Constraint("DistanceY", 0, 2, 0, 1, 18.37486))
sketch14.addConstraint(Sketcher.Constraint("DistanceX", 0, 2, -1, 1, 50.56149))
sketch14.setExpression("Constraints[8]", "Params.sketch14_width")
pocket7 = doc.addObject("PartDesign::Pocket", "Pocket006")
body.addObject(pocket7)
pocket7.Profile = sketch14
pocket7.setExpression("Length", "Params.pocket7_length")

sketch15 = doc.addObject("Sketcher::SketchObject", "Sketch014")
body.addObject(sketch15)
sketch15.AttachmentSupport = (doc.YZ_Plane, [""])
sketch15.MapMode = "FlatFace"
sketch15.AttachmentOffset = App.Placement(V(0, 0, -42.5), App.Rotation())
add_polygon(sketch15, [(0, 22), (-20, 22), (-20, -22), (0, -22)])
sketch15.addConstraint(Sketcher.Constraint("Horizontal", 0))
sketch15.addConstraint(Sketcher.Constraint("Vertical", 1))
sketch15.addConstraint(Sketcher.Constraint("Horizontal", 2))
sketch15.addConstraint(Sketcher.Constraint("Vertical", 3))
sketch15.addConstraint(Sketcher.Constraint("Symmetric", 2, 2, 3, 2, -1, 1))
sketch15.addConstraint(Sketcher.Constraint("DistanceX", 0, 2, 0, 1, 20.0))
sketch15.addConstraint(Sketcher.Constraint("DistanceY", 1, 2, 1, 1, 43.115865))
sketch15.setExpression("Constraints[9]", "Params.sketch15_width")
pad8 = doc.addObject("PartDesign::Pad", "Pad007")
body.addObject(pad8)
pad8.Profile = sketch15
pad8.setExpression("Length", "Params.pad8_length")

sketch16 = doc.addObject("Sketcher::SketchObject", "Sketch015")
body.addObject(sketch16)
sketch16.AttachmentSupport = (doc.YZ_Plane, [""])
sketch16.MapMode = "FlatFace"
sketch16.AttachmentOffset = App.Placement(V(0, 0, -50.56149), App.Rotation())
add_polygon(sketch16, [(25, 18), (7, 18), (7, -18), (25, -18)])
sketch16.addConstraint(Sketcher.Constraint("Horizontal", 0))
sketch16.addConstraint(Sketcher.Constraint("Vertical", 1))
sketch16.addConstraint(Sketcher.Constraint("Horizontal", 2))
sketch16.addConstraint(Sketcher.Constraint("Vertical", 3))
sketch16.addConstraint(Sketcher.Constraint("DistanceY", 1, 2, 1, 1, 36.0))
sketch16.addConstraint(Sketcher.Constraint("DistanceY", -1, 1, 0, 2, 18.0))
sketch16.addConstraint(Sketcher.Constraint("DistanceX", -1, 1, 2, 2, 25.0))
sketch16.addConstraint(Sketcher.Constraint("DistanceX", 0, 2, 0, 1, 18.37486))
sketch16.setExpression("Constraints[8]", "Params.sketch16_height")
pad9 = doc.addObject("PartDesign::Pad", "Pad008")
body.addObject(pad9)
pad9.Profile = sketch16
pad9.setExpression("Length", "Params.pad9_length")

sketch17 = doc.addObject("Sketcher::SketchObject", "Sketch016")
body.addObject(sketch17)
sketch17.AttachmentSupport = (doc.YZ_Plane, [""])
sketch17.MapMode = "FlatFace"
sketch17.AttachmentOffset = App.Placement(V(0, 0, -50.56149), App.Rotation())
add_polygon(sketch17, [(17.9, -34), (17.9, -30.3), (14.7, -28.4), (11.4, -30.3), (11.4, -34), (14.7, -35.9)])
add_polygon(sketch17, [(17.9, 30.3), (17.9, 34), (14.7, 35.9), (11.4, 34), (11.4, 30.3), (14.7, 28.4)])
sketch17.addConstraint(Sketcher.Constraint("Vertical", 0))
sketch17.addConstraint(Sketcher.Constraint("Vertical", 3))
sketch17.addConstraint(Sketcher.Constraint("Vertical", 6))
sketch17.addConstraint(Sketcher.Constraint("Vertical", 9))
sketch17.addConstraint(Sketcher.Constraint("Symmetric", 5, 2, 6, 2, -1))
sketch17.addConstraint(Sketcher.Constraint("Symmetric", 4, 2, 7, 2, -1))
sketch17.addConstraint(Sketcher.Constraint("Symmetric", 3, 2, 8, 2, -1))
sketch17.addConstraint(Sketcher.Constraint("Symmetric", 1, 2, 10, 2, -1))
sketch17.addConstraint(Sketcher.Constraint("Parallel", 1, 4))
sketch17.addConstraint(Sketcher.Constraint("Parallel", 2, 5))
sketch17.addConstraint(Sketcher.Constraint("Parallel", 4, 7))
sketch17.addConstraint(Sketcher.Constraint("Parallel", 7, 10))
sketch17.addConstraint(Sketcher.Constraint("Parallel", 8, 11))
sketch17.addConstraint(Sketcher.Constraint("Horizontal", 0, 2, 2, 2))
sketch17.addConstraint(Sketcher.Constraint("Horizontal", 3, 2, 5, 2))
sketch17.addConstraint(Sketcher.Constraint("Angle", 1, Q("150 deg")))
sketch17.addConstraint(Sketcher.Constraint("DistanceX", 2, 2, 0, 2, 6.5))
sketch17.addConstraint(Sketcher.Constraint("DistanceY", 0, 2, 6, 2, 64.28))
sketch17.addConstraint(Sketcher.Constraint("DistanceY", 0, 1, 0, 2, 3.752777))
sketch17.addConstraint(Sketcher.Constraint("DistanceX", -1, 1, 0, 2, 17.94086))
pocket8 = doc.addObject("PartDesign::Pocket", "Pocket007")
body.addObject(pocket8)
pocket8.Profile = sketch17
pocket8.setExpression("Length", "Params.pocket8_length")
doc.recompute()

fillet = doc.addObject("PartDesign::Fillet", "Fillet")
body.addObject(fillet)
fillet.Base = (pocket8, edges_at(pocket8, [
    (-45.561, 6.625, -50),
    (-45.561, 25, -50),
    (-50.561, 25, -34),
    (-40.561, 6.625, -34),
    (-50.561, 15.813, -50),
    (-50.561, 6.625, -34),
    (-40.561, 15.813, -50),
    (-40.561, 25, -34),
    (-50.561, 15.813, 50),
    (-45.561, 6.625, 50),
    (-40.561, 15.813, 50),
    (-45.561, 25, 50),
    (-40.561, 6.625, 34),
    (-40.561, 25, 34),
    (-50.561, 25, 34),
    (-50.561, 6.625, 34),
    (-50.561, 15.813, 18),
    (-45.561, 25, 18),
    (-45.561, 6.625, 18),
    (-50.561, 15.813, -18),
    (-45.561, 6.625, -18),
    (-45.561, 25, -18),
    (-40.561, 15.813, 18),
    (-40.561, 15.813, -18),
]))
fillet.setExpression("Radius", "Params.fillet_radius")
doc.recompute()

fillet2 = doc.addObject("PartDesign::Fillet", "Fillet001")
body.addObject(fillet2)
fillet2.Base = (fillet, edges_at(fillet, [
    (-39.5, 0, -50),
    (-36.5, -10, -50),
    (-36.5, 0, -35.779),
    (-36.5, -20, -35.779),
    (-36.5, -10, -21.558),
    (-39.5, -20, -21.558),
    (-42.5, -10, -21.558),
    (-39.5, 0, -21.558),
    (-39.5, -20, -50),
    (-42.5, 0, -35.779),
    (-42.5, -10, -50),
    (-42.5, -20, -35.779),
]))
fillet2.setExpression("Radius", "Params.fillet2_radius")
doc.recompute()

fillet3 = doc.addObject("PartDesign::Fillet", "Fillet002")
body.addObject(fillet3)
fillet3.Base = (fillet2, edges_at(fillet2, [
    (-39.5, -20, 50),
    (-36.5, -20, 35.779),
    (-36.5, 0, 35.779),
    (-36.5, -10, 50),
    (-36.5, -10, 21.558),
    (-42.5, 0, 35.779),
    (-42.5, -20, 35.779),
    (-39.5, 0, 21.558),
    (-42.5, -10, 21.558),
    (-39.5, -20, 21.558),
    (-39.5, 0, 50),
    (-42.5, -10, 50),
]))
fillet3.setExpression("Radius", "Params.fillet3_radius")

sketch18 = doc.addObject("Sketcher::SketchObject", "Sketch017")
body.addObject(sketch18)
sketch18.AttachmentSupport = (doc.YZ_Plane, [""])
sketch18.MapMode = "FlatFace"
sketch18.AttachmentOffset = App.Placement(V(0, 0, 57.5), App.Rotation())
sketch18.addGeometry(Part.Circle(V(36.5, 46.5, 0), V(0, 0, 1), 2), False)
sketch18.addGeometry(Part.Circle(V(-32.5, 46.5, 0), V(0, 0, 1), 2), False)
sketch18.addGeometry(Part.Circle(V(36.5, -46.5, 0), V(0, 0, 1), 2), False)
sketch18.addGeometry(Part.Circle(V(-32.5, -46.5, 0), V(0, 0, 1), 2), False)
sketch18.addConstraint(Sketcher.Constraint("Equal", 0, 1))
sketch18.addConstraint(Sketcher.Constraint("Equal", 1, 2))
sketch18.addConstraint(Sketcher.Constraint("Equal", 2, 3))
sketch18.addConstraint(Sketcher.Constraint("Symmetric", 0, 3, 2, 3, -1))
sketch18.addConstraint(Sketcher.Constraint("Symmetric", 1, 3, 3, 3, -1))
sketch18.addConstraint(Sketcher.Constraint("Horizontal", 0, 3, 1, 3))
sketch18.addConstraint(Sketcher.Constraint("Diameter", 0, 4.0))
sketch18.addConstraint(Sketcher.Constraint("DistanceX", 1, 3, 0, 3, 69.0))
sketch18.addConstraint(Sketcher.Constraint("DistanceY", 2, 3, 0, 3, 93.0))
sketch18.addConstraint(Sketcher.Constraint("DistanceX", -1, 1, 0, 3, 36.5))
sketch18.setExpression("Constraints[6]", "Params.sketch18_diameter")
pocket9 = doc.addObject("PartDesign::Pocket", "Pocket008")
body.addObject(pocket9)
pocket9.Profile = sketch18
pocket9.setExpression("Length", "Params.pocket9_length")

doc.recompute()
